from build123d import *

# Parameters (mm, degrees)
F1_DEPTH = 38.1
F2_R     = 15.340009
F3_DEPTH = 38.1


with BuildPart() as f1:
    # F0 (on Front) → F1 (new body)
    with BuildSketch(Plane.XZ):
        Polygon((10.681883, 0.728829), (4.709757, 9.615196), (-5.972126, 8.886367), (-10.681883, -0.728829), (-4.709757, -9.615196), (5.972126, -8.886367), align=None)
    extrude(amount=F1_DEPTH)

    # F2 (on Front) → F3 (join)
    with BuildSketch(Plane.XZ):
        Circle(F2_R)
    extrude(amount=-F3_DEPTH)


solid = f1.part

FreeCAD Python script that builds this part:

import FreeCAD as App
import Part
import Sketcher
Q = App.Units.Quantity

doc = App.newDocument("Part")
body = doc.addObject("PartDesign::Body", "Body")

# Sketch on XZ plane
sketch1 = doc.addObject("Sketcher::SketchObject", "Sketch")
body.addObject(sketch1)
sketch1.AttachmentSupport = (doc.XZ_Plane, [""])
sketch1.MapMode = "FlatFace"
sketch1.addGeometry([
    Part.LineSegment(App.Vector(10.681883, 0.728829, 0), App.Vector(4.709757, 9.615196, 0)),  # 0
    Part.LineSegment(App.Vector(4.709757, 9.615196, 0), App.Vector(-5.972126, 8.886367, 0)),  # 1
    Part.LineSegment(App.Vector(-5.972126, 8.886367, 0), App.Vector(-10.681883, -0.728829, 0)),  # 2
    Part.LineSegment(App.Vector(-10.681883, -0.728829, 0), App.Vector(-4.709757, -9.615196, 0)),  # 3
    Part.LineSegment(App.Vector(-4.709757, -9.615196, 0), App.Vector(5.972126, -8.886367, 0)),  # 4
    Part.LineSegment(App.Vector(5.972126, -8.886367, 0), App.Vector(10.681883, 0.728829, 0)),  # 5
], False)
sketch1.addConstraint([
    Sketcher.Constraint("Coincident", 0, 2, 1, 1),
    Sketcher.Constraint("Coincident", 1, 2, 2, 1),
    Sketcher.Constraint("Coincident", 2, 2, 3, 1),
    Sketcher.Constraint("Coincident", 3, 2, 4, 1),
    Sketcher.Constraint("Coincident", 4, 2, 5, 1),
    Sketcher.Constraint("Coincident", 5, 2, 0, 1),
    Sketcher.Constraint("Symmetric", 0, 2, 3, 2, -1, 1),
    Sketcher.Constraint("Symmetric", 1, 2, 4, 2, -1, 1),
    Sketcher.Constraint("Symmetric", 2, 2, 5, 2, -1, 1),
    Sketcher.Constraint("Equal", 0, 1),
    Sketcher.Constraint("Equal", 1, 2),
    Sketcher.Constraint("Distance", 1, 10.706718),
    Sketcher.Constraint("DistanceY", 2, 2, -1, 1, 0.728829),
    Sketcher.Constraint("DistanceY", 1, 2, 0, 2, 0.728829),
    Sketcher.Constraint("DistanceX", 2, 2, 0, 2, 15.39164),
])
pad1 = doc.addObject("PartDesign::Pad", "Pad")
body.addObject(pad1)
pad1.Profile = sketch1
pad1.Length = Q("1.5 in")

# Sketch on XZ plane
sketch2 = doc.addObject("Sketcher::SketchObject", "Sketch001")
body.addObject(sketch2)
sketch2.AttachmentSupport = (doc.XZ_Plane, [""])
sketch2.MapMode = "FlatFace"
sketch2.addGeometry(Part.Circle(App.Vector(0, 0, 0), App.Vector(0, 0, 1), 15.340009), False)
sketch2.addConstraint([
    Sketcher.Constraint("Coincident", 0, 3, -1, 1),
    Sketcher.Constraint("Diameter", 0, 30.680018),
])
pad2 = doc.addObject("PartDesign::Pad", "Pad001")
body.addObject(pad2)
pad2.Profile = sketch2
pad2.Length = Q("1.5 in")
pad2.Reversed = True

doc.recompute()
